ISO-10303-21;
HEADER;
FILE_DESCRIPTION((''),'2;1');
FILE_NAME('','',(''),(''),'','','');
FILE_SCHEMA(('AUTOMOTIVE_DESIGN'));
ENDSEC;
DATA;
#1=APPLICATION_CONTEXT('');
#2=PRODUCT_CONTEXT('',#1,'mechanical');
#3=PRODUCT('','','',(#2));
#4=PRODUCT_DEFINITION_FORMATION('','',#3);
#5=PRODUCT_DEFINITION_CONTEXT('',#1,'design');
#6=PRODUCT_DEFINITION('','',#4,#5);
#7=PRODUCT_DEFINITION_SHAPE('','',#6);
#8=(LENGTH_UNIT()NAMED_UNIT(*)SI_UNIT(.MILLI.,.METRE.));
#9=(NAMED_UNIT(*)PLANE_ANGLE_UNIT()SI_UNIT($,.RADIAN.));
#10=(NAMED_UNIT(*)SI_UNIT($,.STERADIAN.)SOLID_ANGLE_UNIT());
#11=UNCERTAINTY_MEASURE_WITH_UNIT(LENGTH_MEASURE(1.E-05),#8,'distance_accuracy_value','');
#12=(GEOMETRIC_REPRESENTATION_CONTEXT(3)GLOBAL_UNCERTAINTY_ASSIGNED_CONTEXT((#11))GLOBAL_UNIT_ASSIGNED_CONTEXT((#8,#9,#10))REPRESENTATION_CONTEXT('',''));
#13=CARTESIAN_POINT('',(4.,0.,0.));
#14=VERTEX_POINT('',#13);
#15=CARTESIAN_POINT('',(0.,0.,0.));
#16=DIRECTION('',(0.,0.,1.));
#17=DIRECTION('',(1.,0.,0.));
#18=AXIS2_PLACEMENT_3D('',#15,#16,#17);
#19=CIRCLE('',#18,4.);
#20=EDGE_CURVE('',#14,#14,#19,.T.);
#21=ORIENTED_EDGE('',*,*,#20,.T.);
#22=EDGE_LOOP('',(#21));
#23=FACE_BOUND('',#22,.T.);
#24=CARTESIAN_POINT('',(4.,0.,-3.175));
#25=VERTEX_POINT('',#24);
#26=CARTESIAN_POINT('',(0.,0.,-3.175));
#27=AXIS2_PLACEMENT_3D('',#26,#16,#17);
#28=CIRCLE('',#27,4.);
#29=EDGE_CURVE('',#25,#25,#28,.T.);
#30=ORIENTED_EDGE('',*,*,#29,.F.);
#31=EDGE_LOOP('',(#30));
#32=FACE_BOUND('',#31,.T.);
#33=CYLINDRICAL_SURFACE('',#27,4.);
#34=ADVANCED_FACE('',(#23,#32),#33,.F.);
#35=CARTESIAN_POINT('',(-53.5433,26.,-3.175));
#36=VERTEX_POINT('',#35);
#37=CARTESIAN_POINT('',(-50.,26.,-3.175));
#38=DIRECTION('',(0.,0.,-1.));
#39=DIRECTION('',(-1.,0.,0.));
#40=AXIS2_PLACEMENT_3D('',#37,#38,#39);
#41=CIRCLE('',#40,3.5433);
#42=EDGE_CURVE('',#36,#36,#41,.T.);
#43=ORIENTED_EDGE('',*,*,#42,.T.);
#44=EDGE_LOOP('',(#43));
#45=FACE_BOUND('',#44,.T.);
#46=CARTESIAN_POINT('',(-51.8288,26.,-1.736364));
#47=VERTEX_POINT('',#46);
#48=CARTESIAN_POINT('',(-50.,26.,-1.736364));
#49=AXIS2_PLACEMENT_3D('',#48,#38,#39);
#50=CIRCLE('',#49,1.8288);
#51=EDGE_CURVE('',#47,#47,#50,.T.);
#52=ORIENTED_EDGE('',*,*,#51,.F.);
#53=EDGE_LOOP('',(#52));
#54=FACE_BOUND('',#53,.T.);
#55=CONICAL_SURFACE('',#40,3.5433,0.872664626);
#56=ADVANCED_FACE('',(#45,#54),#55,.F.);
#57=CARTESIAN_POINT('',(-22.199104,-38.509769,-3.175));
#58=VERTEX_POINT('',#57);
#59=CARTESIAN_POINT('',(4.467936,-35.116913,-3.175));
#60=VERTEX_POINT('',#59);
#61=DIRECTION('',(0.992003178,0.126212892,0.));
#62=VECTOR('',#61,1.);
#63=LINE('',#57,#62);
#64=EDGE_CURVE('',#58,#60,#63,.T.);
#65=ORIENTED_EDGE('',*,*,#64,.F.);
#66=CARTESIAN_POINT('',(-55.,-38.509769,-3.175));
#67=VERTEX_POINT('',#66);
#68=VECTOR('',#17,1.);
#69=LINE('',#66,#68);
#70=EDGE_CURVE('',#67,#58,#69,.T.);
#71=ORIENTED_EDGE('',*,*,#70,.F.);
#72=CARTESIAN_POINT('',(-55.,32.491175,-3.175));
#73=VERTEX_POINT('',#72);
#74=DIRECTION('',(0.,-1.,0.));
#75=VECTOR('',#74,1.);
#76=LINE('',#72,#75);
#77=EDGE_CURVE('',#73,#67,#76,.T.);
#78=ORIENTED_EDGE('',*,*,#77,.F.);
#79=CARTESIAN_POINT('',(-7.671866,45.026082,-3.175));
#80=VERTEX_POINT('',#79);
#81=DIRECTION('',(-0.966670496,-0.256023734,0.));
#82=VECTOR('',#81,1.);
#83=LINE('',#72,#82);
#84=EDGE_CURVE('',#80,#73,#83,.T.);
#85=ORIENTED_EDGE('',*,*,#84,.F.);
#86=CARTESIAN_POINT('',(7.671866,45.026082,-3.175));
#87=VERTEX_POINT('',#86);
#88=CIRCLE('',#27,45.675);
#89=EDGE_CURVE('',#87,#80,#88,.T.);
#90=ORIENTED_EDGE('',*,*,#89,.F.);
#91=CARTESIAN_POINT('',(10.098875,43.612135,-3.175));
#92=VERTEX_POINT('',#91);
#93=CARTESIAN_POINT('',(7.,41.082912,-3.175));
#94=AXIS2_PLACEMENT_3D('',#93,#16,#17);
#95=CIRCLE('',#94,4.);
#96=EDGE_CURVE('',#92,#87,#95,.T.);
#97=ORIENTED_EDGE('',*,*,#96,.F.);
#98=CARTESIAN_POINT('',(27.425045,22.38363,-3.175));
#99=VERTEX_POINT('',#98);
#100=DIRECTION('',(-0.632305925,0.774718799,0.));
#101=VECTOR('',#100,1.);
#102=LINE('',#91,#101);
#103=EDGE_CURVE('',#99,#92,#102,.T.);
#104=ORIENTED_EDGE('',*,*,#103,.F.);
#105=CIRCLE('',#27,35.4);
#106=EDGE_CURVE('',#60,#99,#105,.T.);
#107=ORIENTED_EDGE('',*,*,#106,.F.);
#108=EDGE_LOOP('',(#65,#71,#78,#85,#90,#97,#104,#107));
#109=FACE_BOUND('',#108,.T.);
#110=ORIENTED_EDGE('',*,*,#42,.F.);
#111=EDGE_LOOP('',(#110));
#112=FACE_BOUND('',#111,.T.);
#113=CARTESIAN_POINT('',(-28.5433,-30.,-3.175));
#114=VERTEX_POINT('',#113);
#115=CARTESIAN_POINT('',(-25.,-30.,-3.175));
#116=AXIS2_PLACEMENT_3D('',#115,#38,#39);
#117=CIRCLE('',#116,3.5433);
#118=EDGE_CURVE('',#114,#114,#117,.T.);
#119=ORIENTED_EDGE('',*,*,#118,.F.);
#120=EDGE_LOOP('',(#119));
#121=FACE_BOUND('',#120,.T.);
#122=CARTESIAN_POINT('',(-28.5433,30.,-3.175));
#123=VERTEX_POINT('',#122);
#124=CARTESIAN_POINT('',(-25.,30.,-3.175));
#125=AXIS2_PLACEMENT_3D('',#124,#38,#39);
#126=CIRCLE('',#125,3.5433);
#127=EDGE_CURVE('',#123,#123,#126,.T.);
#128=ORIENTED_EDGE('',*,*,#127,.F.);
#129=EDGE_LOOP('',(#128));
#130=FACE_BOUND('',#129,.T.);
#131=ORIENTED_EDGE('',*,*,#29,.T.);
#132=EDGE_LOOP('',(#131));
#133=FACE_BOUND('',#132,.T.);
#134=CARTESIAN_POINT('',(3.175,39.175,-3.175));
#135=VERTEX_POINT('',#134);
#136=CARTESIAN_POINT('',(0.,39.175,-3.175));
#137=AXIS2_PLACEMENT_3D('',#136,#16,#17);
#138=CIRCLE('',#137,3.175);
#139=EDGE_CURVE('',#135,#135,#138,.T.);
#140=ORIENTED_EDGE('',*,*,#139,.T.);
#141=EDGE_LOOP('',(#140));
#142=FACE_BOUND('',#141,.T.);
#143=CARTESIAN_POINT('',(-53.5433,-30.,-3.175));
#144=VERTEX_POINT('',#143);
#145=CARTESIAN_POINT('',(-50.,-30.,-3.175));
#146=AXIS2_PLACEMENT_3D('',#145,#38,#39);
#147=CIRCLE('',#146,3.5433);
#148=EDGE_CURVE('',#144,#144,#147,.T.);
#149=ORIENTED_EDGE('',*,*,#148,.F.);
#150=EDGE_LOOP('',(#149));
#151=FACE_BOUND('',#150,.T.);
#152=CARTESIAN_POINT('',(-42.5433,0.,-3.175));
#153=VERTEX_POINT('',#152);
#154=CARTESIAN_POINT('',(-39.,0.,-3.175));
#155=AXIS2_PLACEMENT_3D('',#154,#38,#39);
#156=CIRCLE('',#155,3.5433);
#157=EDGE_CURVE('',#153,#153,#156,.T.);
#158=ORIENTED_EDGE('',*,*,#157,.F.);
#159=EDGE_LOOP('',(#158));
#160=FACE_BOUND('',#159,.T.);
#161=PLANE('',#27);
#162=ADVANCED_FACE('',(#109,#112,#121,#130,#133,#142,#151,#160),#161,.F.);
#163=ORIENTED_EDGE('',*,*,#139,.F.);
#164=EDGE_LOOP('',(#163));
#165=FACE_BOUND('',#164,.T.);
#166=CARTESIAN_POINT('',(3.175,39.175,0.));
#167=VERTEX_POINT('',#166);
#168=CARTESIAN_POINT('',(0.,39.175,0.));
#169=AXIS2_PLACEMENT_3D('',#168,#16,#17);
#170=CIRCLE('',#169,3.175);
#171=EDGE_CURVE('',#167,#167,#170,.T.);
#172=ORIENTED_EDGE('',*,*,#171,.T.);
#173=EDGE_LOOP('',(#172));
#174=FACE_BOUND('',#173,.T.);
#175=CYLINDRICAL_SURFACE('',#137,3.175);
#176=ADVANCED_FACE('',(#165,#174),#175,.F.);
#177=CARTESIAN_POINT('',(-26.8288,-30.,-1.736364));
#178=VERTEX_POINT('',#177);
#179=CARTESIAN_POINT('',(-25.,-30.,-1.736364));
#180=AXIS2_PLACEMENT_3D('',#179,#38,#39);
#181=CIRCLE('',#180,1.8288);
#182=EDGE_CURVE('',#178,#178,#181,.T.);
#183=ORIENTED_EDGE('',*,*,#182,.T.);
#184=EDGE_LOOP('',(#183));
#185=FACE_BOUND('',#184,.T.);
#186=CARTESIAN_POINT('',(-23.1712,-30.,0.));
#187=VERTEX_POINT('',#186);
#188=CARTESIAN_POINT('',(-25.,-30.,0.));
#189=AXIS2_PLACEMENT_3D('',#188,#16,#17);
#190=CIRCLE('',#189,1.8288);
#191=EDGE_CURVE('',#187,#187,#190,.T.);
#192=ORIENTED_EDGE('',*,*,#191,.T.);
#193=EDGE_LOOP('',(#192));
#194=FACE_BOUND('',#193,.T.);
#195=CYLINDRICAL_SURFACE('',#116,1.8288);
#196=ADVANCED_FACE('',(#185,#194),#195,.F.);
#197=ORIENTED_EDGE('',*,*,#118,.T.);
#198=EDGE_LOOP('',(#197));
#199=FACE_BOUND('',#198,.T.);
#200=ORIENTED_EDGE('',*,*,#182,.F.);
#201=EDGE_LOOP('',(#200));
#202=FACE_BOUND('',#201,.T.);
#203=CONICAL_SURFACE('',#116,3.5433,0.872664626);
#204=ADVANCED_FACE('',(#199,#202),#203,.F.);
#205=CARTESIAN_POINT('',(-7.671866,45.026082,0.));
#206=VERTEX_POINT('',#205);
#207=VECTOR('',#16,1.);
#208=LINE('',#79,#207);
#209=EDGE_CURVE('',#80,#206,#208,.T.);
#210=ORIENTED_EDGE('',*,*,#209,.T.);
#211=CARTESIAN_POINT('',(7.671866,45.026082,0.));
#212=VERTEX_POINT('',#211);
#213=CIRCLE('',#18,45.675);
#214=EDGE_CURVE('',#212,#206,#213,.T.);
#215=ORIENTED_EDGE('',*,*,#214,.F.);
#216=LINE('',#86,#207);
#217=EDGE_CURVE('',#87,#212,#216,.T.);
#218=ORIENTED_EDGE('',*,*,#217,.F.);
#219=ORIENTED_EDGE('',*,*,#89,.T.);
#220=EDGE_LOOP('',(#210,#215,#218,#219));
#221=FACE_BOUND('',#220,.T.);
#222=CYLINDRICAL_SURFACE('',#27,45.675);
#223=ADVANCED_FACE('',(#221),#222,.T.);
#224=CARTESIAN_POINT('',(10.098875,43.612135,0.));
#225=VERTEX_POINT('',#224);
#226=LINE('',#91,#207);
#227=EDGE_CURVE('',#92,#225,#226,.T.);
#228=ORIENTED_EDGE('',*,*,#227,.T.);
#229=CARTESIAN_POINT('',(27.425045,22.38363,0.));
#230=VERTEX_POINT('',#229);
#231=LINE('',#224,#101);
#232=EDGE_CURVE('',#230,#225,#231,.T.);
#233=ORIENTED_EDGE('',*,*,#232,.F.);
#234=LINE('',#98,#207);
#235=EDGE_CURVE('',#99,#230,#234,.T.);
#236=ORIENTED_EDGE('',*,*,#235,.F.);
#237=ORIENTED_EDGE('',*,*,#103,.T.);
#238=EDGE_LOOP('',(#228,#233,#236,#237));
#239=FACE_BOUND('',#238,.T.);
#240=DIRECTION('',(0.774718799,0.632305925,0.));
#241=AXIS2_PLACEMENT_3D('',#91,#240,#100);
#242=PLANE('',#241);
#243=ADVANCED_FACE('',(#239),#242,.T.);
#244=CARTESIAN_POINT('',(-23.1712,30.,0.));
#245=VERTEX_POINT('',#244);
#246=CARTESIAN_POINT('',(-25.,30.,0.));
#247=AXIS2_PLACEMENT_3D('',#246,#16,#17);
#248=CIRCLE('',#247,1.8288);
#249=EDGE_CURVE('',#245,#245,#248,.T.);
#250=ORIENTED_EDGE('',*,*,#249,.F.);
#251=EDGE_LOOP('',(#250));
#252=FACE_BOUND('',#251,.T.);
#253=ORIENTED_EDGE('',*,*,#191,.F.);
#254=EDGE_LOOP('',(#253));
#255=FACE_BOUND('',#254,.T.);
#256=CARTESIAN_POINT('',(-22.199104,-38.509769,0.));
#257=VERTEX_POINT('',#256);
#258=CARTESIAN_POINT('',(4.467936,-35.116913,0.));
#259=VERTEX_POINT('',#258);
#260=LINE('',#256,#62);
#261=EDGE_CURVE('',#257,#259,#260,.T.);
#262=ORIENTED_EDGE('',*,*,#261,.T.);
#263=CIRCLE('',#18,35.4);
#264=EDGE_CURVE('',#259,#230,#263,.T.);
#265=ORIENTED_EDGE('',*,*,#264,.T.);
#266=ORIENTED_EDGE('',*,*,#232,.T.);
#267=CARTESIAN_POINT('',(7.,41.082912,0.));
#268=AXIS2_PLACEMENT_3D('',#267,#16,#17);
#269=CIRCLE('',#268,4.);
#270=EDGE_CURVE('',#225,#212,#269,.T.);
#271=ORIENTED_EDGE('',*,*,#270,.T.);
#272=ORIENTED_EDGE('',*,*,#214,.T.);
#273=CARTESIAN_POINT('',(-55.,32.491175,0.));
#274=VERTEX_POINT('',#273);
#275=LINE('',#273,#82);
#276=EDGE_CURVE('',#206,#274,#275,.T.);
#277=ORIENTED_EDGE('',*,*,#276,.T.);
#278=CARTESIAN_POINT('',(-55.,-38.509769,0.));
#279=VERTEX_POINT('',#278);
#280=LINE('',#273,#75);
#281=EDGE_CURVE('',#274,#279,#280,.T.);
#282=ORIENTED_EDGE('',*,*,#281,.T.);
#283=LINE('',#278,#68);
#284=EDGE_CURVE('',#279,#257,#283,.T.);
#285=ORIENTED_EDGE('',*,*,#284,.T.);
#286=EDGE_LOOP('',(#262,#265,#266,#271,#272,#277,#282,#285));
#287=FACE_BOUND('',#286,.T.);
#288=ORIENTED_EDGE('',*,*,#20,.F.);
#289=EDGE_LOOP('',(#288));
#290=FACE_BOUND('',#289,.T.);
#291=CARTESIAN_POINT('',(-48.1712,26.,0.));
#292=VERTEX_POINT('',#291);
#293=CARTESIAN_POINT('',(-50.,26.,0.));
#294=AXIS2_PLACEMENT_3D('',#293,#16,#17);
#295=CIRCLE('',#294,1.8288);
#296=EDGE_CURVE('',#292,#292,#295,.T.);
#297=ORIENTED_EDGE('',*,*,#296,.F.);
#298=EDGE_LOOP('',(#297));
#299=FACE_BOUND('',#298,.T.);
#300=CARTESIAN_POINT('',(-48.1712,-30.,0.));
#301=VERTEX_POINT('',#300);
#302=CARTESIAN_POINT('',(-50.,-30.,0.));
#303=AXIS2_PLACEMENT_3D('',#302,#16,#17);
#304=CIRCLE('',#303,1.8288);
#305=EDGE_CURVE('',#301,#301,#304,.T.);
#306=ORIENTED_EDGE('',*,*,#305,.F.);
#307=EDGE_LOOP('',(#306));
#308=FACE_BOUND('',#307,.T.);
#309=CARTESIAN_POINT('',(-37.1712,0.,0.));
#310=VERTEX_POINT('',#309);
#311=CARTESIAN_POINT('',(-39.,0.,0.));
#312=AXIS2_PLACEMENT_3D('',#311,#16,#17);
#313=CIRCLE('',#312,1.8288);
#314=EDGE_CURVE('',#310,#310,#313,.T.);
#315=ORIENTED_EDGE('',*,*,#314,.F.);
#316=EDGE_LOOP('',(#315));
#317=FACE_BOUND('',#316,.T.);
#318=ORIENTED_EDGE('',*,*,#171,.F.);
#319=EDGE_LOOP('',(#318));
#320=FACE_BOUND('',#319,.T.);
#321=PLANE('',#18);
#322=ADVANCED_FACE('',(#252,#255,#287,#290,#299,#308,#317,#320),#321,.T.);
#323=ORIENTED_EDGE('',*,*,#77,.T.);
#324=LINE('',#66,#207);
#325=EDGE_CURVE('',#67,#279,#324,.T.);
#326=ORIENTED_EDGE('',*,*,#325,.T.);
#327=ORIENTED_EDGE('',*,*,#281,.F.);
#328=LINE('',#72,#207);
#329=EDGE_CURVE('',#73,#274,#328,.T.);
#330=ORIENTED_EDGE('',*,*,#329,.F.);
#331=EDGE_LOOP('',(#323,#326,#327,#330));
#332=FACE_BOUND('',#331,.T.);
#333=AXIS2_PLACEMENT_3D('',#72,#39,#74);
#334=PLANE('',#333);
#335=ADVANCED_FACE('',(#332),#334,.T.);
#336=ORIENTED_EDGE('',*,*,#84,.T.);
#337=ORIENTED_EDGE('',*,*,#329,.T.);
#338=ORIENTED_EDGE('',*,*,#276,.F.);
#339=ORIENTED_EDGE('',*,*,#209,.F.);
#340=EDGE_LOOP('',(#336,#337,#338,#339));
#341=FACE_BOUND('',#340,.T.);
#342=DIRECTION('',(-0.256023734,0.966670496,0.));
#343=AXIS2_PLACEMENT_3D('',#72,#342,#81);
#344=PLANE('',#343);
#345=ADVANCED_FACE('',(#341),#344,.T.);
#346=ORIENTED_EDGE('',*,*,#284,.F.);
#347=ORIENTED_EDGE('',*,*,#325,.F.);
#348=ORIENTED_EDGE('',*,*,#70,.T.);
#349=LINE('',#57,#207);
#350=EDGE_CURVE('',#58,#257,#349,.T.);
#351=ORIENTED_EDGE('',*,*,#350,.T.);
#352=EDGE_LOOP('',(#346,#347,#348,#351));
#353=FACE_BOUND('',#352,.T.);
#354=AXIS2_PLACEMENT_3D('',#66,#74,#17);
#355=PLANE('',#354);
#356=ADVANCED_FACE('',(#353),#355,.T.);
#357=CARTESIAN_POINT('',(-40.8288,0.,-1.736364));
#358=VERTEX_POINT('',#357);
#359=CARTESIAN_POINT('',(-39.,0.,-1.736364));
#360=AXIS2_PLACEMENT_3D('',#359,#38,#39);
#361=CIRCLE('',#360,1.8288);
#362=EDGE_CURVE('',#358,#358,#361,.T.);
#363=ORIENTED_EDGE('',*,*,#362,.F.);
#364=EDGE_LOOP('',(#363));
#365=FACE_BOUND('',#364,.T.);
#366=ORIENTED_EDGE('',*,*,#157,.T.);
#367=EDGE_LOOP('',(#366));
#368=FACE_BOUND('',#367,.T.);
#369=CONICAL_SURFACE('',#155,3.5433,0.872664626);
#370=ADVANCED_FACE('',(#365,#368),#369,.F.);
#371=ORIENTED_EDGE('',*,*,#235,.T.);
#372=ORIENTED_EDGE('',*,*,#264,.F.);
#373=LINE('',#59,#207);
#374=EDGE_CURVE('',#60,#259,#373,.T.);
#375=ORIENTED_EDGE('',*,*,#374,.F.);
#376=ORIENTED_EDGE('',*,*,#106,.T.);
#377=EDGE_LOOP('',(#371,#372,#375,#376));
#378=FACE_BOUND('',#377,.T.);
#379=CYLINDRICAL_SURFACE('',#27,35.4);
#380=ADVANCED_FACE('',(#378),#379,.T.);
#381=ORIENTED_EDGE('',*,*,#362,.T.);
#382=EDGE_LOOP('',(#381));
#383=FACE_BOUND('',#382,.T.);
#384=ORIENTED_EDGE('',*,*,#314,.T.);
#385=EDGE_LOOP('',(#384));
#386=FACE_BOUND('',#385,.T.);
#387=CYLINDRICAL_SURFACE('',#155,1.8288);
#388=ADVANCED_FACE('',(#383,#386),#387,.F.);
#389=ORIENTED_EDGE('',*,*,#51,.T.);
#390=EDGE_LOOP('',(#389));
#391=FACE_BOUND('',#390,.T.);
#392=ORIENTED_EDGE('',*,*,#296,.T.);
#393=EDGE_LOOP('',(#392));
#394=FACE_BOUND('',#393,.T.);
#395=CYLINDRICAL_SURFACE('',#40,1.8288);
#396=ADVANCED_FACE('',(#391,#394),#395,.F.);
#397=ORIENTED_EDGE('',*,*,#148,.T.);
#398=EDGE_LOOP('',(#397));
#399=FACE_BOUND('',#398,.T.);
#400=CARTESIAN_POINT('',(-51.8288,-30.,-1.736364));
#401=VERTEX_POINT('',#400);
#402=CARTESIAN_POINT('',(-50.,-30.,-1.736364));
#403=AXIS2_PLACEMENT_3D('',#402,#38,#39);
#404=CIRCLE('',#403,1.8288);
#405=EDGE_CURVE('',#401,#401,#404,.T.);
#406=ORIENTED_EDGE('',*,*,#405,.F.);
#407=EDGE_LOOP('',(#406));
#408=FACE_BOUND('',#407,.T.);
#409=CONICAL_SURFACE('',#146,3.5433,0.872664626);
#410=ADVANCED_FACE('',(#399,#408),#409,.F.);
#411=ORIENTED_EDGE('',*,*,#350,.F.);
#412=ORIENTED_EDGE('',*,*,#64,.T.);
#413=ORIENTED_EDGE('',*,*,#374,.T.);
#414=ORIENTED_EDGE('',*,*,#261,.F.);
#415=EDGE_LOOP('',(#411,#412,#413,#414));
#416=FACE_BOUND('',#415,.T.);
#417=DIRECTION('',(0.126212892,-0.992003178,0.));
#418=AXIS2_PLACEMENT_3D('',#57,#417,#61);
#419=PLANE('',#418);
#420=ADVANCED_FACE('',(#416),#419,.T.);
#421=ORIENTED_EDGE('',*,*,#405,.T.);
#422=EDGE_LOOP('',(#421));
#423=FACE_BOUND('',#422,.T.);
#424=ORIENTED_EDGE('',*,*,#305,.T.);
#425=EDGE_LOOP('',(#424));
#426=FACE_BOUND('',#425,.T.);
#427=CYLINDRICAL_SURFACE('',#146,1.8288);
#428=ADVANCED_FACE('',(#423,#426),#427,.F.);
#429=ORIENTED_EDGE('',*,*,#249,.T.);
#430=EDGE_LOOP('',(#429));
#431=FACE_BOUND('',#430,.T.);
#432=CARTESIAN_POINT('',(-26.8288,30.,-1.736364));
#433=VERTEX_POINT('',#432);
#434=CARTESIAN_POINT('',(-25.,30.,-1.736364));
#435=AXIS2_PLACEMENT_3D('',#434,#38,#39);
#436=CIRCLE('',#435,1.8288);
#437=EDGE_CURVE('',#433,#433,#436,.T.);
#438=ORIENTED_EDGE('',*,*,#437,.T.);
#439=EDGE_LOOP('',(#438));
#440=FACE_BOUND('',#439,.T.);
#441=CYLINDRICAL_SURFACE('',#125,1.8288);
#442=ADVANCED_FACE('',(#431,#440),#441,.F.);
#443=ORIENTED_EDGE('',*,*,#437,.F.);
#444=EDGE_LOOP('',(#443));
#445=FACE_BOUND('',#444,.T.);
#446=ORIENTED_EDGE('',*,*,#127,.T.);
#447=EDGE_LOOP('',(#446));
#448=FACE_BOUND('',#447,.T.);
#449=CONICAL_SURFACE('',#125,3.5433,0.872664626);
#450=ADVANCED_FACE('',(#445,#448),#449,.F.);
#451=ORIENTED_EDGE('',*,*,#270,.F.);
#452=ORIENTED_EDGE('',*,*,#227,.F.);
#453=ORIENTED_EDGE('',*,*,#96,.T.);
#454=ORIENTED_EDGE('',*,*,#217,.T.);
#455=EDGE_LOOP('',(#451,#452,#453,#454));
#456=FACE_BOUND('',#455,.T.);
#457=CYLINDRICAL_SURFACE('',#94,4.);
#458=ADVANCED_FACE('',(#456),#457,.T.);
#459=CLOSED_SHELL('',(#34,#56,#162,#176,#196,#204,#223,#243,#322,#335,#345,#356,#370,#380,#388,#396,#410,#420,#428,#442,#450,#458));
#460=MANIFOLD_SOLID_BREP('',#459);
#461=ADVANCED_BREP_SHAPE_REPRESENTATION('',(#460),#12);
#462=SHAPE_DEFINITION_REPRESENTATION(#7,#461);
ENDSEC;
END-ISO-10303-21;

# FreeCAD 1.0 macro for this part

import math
import FreeCAD as App
import Part
import Sketcher

V = App.Vector
Q = App.Units.Quantity

doc = App.newDocument("Part")
body = doc.addObject("PartDesign::Body", "Body")

# Sketch on XY plane
sketch1 = doc.addObject("Sketcher::SketchObject", "Sketch")
body.addObject(sketch1)
sketch1.AttachmentSupport = (doc.XY_Plane, [""])
sketch1.MapMode = "FlatFace"
sketch1.addGeometry([
    Part.LineSegment(V(-55, -38.509769, 0), V(-22.199104, -38.509769, 0)),  # 0
    Part.LineSegment(V(-22.199104, -38.509769, 0), V(4.467936, -35.116913, 0)),  # 1
    Part.ArcOfCircle(Part.Circle(V(0, 0, 0), V(0, 0, 1), 35.4), math.radians(-82.749196), math.radians(39.220455)),  # 2
    Part.LineSegment(V(27.425045, 22.38363, 0), V(10.098875, 43.612135, 0)),  # 3
    Part.ArcOfCircle(Part.Circle(V(7, 41.082912, 0), V(0, 0, 1), 4), math.radians(39.220455), math.radians(80.330397)),  # 4
    Part.ArcOfCircle(Part.Circle(V(0, 0, 0), V(0, 0, 1), 45.675), math.radians(80.330397), math.radians(99.669603)),  # 5
    Part.LineSegment(V(-7.671866, 45.026082, 0), V(-55, 32.491175, 0)),  # 6
    Part.LineSegment(V(-55, 32.491175, 0), V(-55, -38.509769, 0)),  # 7
    Part.Circle(V(0, 0, 0), V(0, 0, 1), 4),  # 8
    Part.Circle(V(0, 39.175, 0), V(0, 0, 1), 3.175),  # 9
], False)
sketch1.addConstraint([
    Sketcher.Constraint("Coincident", 0, 2, 1, 1),
    Sketcher.Constraint("Tangent", 1, 2, 2, 1),
    Sketcher.Constraint("Tangent", 2, 2, 3, 1),
    Sketcher.Constraint("Tangent", 3, 2, 4, 1),
    Sketcher.Constraint("Tangent", 4, 2, 5, 1),
    Sketcher.Constraint("Coincident", 5, 2, 6, 1),
    Sketcher.Constraint("Coincident", 6, 2, 7, 1),
    Sketcher.Constraint("Coincident", 7, 2, 0, 1),
    Sketcher.Constraint("Horizontal", 0),
    Sketcher.Constraint("Vertical", 7),
    Sketcher.Constraint("Coincident", 2, 3, -1, 1),
    Sketcher.Constraint("Coincident", 5, 3, -1, 1),
    Sketcher.Constraint("Coincident", 8, 3, -1, 1),
    Sketcher.Constraint("Equal", 4, 8),
    Sketcher.Constraint("PointOnObject", 9, 3, -2),
    Sketcher.Constraint("Horizontal", 4, 2, 5, 2),
    Sketcher.Constraint("Diameter", 9, Q("0.25 in")),
    Sketcher.Constraint("Diameter", 8, 8.0),
    Sketcher.Constraint("Radius", 2, 35.4),
    Sketcher.Constraint("Radius", 5, 45.675),
    Sketcher.Constraint("DistanceX", -1, 1, 4, 3, 7.0),
    Sketcher.Constraint("DistanceY", -1, 1, 9, 3, 39.175),
    Sketcher.Constraint("DistanceX", 6, 2, -1, 1, 55.0),
    Sketcher.Constraint("Distance", 1, 26.882011),
    Sketcher.Constraint("DistanceX", 0, 1, 0, 2, 32.800896),
    Sketcher.Constraint("DistanceY", 7, 2, 7, 1, 71.000943),
])
pad1 = doc.addObject("PartDesign::Pad", "Pad")
body.addObject(pad1)
pad1.Profile = sketch1
pad1.Length = Q("0.125 in")
pad1.Reversed = True

# Sketch on XY plane
sketch2 = doc.addObject("Sketcher::SketchObject", "Sketch001")
body.addObject(sketch2)
sketch2.AttachmentSupport = (doc.XY_Plane, [""])
sketch2.MapMode = "FlatFace"
sketch2.AttachmentOffset = App.Placement(V(0, 0, -0.125 * 25.4), App.Rotation())
sketch2.addGeometry([
    Part.Circle(V(-50, 26, 0), V(0, 0, 1), 1.8288),  # 0
    Part.Circle(V(-39, 0, 0), V(0, 0, 1), 1.8288),  # 1
    Part.Circle(V(-50, -30, 0), V(0, 0, 1), 1.8288),  # 2
    Part.Circle(V(-25, 30, 0), V(0, 0, 1), 1.8288),  # 3
    Part.Circle(V(-25, -30, 0), V(0, 0, 1), 1.8288),  # 4
], False)
sketch2.addConstraint([
    Sketcher.Constraint("Equal", 0, 1),
    Sketcher.Constraint("Equal", 1, 2),
    Sketcher.Constraint("Equal", 2, 3),
    Sketcher.Constraint("Equal", 3, 4),
    Sketcher.Constraint("Symmetric", 3, 3, 4, 3, -1),
    Sketcher.Constraint("PointOnObject", 1, 3, -1),
    Sketcher.Constraint("Horizontal", 2, 3, 4, 3),
    Sketcher.Constraint("Vertical", 0, 3, 2, 3),
    Sketcher.Constraint("Diameter", 0, Q("0.144 in")),
    Sketcher.Constraint("DistanceX", 0, 3, -1, 1, 50.0),
    Sketcher.Constraint("DistanceY", -1, 1, 0, 3, 26.0),
    Sketcher.Constraint("DistanceX", 1, 3, -1, 1, 39.0),
    Sketcher.Constraint("DistanceY", 2, 3, -1, 1, 30.0),
    Sketcher.Constraint("DistanceX", 3, 3, -1, 1, 25.0),
])
doc.recompute()
hole = doc.addObject("PartDesign::Hole", "Hole")
body.addObject(hole)
hole.Profile = sketch2
hole.ThreadType = "None"
hole.Diameter = Q("0.144 in")
hole.DepthType = "Dimension"
hole.Depth = 8
hole.DrillPoint = "Angled"
hole.DrillPointAngle = 118
hole.HoleCutType = "Countersink"
hole.HoleCutDiameter = Q("0.279 in")
hole.HoleCutCountersinkAngle = 100
hole.Reversed = True

doc.recompute()
